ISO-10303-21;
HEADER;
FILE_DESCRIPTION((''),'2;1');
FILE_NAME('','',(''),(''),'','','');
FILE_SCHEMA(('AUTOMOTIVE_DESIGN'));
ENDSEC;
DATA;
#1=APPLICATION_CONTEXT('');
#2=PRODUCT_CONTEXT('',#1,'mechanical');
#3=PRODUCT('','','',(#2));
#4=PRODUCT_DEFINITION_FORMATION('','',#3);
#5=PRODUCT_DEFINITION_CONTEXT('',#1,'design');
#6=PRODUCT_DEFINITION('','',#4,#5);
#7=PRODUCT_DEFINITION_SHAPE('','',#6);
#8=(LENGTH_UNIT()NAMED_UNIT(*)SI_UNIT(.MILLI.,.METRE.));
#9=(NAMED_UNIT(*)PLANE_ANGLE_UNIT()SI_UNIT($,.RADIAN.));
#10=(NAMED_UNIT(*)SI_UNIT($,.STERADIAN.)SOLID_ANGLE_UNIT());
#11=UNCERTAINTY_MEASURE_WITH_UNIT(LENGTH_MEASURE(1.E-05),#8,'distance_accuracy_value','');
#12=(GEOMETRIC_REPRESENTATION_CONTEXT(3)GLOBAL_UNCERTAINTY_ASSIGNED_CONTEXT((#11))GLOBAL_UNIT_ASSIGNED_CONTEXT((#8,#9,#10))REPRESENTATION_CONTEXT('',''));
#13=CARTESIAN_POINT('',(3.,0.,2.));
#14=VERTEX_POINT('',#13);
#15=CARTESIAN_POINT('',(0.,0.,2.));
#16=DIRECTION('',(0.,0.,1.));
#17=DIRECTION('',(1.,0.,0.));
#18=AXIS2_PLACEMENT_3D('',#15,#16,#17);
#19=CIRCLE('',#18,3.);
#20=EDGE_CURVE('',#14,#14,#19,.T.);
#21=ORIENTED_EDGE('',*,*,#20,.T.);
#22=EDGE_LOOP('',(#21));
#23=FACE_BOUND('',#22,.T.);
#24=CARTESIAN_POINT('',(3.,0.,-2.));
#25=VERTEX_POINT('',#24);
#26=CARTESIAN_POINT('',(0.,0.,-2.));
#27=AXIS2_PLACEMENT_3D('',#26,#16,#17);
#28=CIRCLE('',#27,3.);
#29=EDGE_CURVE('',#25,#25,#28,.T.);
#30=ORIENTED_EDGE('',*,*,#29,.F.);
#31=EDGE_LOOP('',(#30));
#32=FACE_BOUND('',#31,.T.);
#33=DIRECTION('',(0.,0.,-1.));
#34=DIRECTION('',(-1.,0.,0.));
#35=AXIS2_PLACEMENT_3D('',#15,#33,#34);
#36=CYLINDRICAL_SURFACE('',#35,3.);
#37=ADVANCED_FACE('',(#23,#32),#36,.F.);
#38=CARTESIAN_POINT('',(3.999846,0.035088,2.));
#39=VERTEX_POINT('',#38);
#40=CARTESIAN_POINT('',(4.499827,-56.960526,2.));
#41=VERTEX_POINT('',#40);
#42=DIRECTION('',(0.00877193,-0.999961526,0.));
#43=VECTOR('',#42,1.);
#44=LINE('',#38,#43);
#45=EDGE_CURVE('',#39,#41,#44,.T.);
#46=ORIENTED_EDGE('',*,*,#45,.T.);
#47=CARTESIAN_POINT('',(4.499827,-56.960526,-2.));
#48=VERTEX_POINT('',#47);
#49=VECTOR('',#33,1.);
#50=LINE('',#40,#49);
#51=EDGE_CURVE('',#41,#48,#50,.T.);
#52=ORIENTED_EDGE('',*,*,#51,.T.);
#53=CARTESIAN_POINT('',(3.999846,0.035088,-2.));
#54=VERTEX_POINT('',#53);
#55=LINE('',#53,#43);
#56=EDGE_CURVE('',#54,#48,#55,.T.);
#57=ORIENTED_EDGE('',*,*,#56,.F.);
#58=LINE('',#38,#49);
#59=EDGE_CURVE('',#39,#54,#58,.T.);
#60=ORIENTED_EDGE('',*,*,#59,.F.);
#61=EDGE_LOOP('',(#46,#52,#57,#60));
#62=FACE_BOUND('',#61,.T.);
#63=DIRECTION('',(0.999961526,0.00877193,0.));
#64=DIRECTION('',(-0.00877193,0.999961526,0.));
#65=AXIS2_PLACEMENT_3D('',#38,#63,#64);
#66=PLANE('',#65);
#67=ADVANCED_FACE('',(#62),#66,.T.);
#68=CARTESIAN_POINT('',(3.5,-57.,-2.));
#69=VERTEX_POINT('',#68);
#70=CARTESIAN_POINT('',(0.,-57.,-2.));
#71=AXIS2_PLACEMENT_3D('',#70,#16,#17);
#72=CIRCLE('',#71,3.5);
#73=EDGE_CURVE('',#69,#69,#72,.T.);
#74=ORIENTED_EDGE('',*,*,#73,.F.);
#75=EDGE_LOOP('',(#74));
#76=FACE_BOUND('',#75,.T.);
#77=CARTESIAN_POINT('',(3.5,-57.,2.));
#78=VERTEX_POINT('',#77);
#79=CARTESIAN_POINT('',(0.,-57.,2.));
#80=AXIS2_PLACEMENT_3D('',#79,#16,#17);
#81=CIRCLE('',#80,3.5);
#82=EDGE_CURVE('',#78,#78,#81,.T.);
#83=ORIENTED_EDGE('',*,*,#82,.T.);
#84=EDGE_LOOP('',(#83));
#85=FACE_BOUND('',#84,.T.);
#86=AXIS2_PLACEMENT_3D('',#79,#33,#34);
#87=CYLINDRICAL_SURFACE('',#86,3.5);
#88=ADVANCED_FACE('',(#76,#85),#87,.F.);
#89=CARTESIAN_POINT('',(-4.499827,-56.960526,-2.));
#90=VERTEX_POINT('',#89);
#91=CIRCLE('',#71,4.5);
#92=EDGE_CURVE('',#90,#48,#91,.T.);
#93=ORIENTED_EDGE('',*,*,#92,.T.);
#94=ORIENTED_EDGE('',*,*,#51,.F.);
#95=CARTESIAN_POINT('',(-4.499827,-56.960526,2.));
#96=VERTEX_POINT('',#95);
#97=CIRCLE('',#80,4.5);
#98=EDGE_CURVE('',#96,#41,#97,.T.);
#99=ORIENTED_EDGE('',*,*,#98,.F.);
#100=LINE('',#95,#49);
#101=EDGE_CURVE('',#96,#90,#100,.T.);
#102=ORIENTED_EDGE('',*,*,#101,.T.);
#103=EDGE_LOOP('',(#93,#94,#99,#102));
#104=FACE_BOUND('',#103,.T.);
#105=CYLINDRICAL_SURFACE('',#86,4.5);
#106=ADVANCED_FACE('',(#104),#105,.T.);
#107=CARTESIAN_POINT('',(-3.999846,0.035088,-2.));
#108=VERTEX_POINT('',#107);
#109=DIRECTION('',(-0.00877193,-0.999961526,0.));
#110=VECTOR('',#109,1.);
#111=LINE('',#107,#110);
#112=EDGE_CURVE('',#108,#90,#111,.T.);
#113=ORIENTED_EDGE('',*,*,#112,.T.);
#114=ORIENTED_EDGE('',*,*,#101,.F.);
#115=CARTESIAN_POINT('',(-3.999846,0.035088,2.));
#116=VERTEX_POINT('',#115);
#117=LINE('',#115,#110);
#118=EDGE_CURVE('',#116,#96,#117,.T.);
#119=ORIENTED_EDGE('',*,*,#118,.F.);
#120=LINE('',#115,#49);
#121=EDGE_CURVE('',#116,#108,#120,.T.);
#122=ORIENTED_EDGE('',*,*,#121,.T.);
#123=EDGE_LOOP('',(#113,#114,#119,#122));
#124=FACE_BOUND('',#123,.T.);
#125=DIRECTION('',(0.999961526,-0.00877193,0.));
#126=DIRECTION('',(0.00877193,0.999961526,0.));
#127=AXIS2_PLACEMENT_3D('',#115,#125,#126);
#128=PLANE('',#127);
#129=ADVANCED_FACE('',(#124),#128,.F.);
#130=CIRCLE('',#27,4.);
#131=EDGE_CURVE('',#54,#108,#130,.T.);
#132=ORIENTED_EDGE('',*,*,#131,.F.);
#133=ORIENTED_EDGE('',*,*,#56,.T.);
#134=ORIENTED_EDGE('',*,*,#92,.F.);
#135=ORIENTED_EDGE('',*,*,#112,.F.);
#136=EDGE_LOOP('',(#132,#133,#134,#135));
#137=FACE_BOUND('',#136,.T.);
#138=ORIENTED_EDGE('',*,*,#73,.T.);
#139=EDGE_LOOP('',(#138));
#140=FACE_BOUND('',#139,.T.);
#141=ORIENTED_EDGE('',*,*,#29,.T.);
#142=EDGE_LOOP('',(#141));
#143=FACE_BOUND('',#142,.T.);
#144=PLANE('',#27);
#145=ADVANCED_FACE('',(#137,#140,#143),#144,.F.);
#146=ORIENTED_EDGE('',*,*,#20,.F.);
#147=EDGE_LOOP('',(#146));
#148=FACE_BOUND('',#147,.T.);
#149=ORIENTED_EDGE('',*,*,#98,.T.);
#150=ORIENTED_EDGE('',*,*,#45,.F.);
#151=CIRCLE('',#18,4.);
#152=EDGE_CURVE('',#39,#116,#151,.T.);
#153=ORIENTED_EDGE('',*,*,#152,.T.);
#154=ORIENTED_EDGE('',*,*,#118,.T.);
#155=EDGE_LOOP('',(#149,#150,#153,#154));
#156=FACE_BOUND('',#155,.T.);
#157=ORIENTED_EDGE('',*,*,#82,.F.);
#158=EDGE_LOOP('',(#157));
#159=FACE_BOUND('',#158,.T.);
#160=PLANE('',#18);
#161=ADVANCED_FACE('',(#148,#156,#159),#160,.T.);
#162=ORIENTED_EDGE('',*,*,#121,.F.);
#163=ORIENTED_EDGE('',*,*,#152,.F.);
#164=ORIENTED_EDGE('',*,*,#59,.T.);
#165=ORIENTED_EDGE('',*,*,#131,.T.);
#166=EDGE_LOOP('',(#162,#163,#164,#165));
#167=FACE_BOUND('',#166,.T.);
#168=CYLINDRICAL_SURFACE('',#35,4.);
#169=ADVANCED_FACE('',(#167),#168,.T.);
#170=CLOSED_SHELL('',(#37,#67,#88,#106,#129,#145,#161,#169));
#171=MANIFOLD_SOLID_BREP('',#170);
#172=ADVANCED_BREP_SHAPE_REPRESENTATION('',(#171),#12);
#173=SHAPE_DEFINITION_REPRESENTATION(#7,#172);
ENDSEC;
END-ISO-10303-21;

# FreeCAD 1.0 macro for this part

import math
import FreeCAD as App
import Part
import Sketcher
from FreeCAD import Vector
Q = App.Units.Quantity

doc = App.newDocument("Part")
body = doc.addObject("PartDesign::Body", "Body")

# Sketch on XY plane
sketch1 = doc.addObject("Sketcher::SketchObject", "Sketch")
body.addObject(sketch1)
sketch1.AttachmentSupport = (doc.XY_Plane, [""])
sketch1.MapMode = "FlatFace"
sketch1.addGeometry([
    Part.LineSegment(Vector(4.5, -57, 0), Vector(4, 0, 0)),  # 0
    Part.ArcOfCircle(Part.Circle(Vector(0, 0, 0), Vector(0, 0, 1), 4), math.radians(1), math.radians(179)),  # 1
    Part.LineSegment(Vector(-4, 0, 0), Vector(-4.5, -57, 0)),  # 2
    Part.ArcOfCircle(Part.Circle(Vector(0, -57, 0), Vector(0, 0, 1), 4.5), math.radians(179), math.radians(361)),  # 3
    Part.Circle(Vector(0, -57, 0), Vector(0, 0, 1), 3.5),  # 4
    Part.Circle(Vector(0, 0, 0), Vector(0, 0, 1), 3),  # 5
], False)
sketch1.addConstraint([
    Sketcher.Constraint("Tangent", 0, 2, 1, 1),
    Sketcher.Constraint("Tangent", 1, 2, 2, 1),
    Sketcher.Constraint("Tangent", 2, 2, 3, 1),
    Sketcher.Constraint("Tangent", 3, 2, 0, 1),
    Sketcher.Constraint("Coincident", 1, 3, -1, 1),
    Sketcher.Constraint("Coincident", 5, 3, -1, 1),
    Sketcher.Constraint("Coincident", 4, 3, 3, 3),
    Sketcher.Constraint("PointOnObject", 3, 3, -2),
    Sketcher.Constraint("Diameter", 4, Q("7 mm")),
    Sketcher.Constraint("Diameter", 5, Q("6 mm")),
    Sketcher.Constraint("Radius", 1, Q("4 mm")),
    Sketcher.Constraint("Radius", 3, Q("4.5 mm")),
    Sketcher.Constraint("DistanceY", 3, 3, -1, 1, Q("57 mm")),
])
pad1 = doc.addObject("PartDesign::Pad", "Pad")
body.addObject(pad1)
pad1.Profile = sketch1
pad1.Length = 4
pad1.Midplane = True

doc.recompute()
